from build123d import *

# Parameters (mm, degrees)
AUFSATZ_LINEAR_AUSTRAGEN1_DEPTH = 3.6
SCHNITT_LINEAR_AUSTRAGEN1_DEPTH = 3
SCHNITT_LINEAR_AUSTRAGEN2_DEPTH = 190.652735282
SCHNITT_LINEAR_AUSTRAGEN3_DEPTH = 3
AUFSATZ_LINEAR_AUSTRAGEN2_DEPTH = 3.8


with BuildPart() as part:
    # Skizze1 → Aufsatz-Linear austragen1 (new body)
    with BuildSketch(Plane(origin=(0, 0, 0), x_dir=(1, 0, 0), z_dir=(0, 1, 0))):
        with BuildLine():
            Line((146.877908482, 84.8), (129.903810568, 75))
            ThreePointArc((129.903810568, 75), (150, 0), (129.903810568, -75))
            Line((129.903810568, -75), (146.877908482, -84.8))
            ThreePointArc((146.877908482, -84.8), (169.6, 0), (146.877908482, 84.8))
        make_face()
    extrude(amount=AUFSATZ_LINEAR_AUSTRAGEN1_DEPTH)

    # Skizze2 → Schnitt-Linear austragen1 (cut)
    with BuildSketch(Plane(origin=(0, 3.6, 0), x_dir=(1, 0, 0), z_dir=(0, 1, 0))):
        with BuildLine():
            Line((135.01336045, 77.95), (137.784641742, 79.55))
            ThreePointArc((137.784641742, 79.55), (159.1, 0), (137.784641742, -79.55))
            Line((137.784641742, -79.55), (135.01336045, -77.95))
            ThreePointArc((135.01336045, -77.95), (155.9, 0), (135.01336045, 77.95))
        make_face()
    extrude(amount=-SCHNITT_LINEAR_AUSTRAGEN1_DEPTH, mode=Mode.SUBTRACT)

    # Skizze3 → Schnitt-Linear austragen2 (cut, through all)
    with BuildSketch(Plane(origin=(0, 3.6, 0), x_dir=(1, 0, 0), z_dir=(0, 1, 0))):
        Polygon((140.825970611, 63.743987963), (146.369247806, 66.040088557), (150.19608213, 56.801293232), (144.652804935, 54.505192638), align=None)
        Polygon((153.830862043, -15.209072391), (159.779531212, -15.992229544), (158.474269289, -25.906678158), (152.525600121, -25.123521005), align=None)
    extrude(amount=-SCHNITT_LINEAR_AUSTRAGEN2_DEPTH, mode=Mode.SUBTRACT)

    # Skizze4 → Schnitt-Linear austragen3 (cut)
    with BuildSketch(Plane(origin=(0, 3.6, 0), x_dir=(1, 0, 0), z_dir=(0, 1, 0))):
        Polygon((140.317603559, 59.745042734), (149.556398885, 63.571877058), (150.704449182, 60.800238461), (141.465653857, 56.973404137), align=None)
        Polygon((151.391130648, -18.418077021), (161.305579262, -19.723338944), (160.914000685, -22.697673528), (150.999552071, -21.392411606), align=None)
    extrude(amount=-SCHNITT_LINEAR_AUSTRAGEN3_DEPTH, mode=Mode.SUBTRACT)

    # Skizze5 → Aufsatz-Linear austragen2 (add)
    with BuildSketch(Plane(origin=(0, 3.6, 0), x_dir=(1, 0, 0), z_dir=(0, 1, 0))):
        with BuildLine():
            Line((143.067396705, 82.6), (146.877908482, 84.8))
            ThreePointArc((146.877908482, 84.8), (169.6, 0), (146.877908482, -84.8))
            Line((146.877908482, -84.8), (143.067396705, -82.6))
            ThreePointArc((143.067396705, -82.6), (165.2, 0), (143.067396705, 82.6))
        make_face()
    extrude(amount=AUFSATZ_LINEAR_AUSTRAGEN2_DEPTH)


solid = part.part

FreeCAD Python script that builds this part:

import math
import FreeCAD as App
import Part
import Sketcher

V = App.Vector
Q = App.Units.Quantity


def add_polygon(sketch, points):
    """Adds a closed chain of lines whose ends are joined by coincident constraints."""
    first, n = sketch.GeometryCount, len(points)
    for a, b in zip(points, points[1:] + points[:1]):
        sketch.addGeometry(Part.LineSegment(App.Vector(*a, 0), App.Vector(*b, 0)), False)
    for i in range(n):
        sketch.addConstraint(Sketcher.Constraint("Coincident", first + i, 2, first + (i + 1) % n, 1))

doc = App.newDocument("Part")
body = doc.addObject("PartDesign::Body", "Body")

# Sketch on XZ plane
sketch1 = doc.addObject("Sketcher::SketchObject", "Sketch")
body.addObject(sketch1)
sketch1.AttachmentSupport = (doc.XZ_Plane, [""])
sketch1.MapMode = "FlatFace"
sketch1.addGeometry(Part.LineSegment(V(146.877908, -84.8, 0), V(129.903811, -75, 0)), False)
sketch1.addGeometry(Part.ArcOfCircle(Part.Circle(V(0, 0, 0), V(0, 0, 1), 150), math.radians(-30), math.radians(30)), False)
sketch1.addGeometry(Part.LineSegment(V(129.903811, 75, 0), V(146.877908, 84.8, 0)), False)
sketch1.addGeometry(Part.ArcOfCircle(Part.Circle(V(0, 0, 0), V(0, 0, 1), 169.6), math.radians(-30), math.radians(30)), False)
sketch1.addConstraint(Sketcher.Constraint("Coincident", 0, 2, 1, 1))
sketch1.addConstraint(Sketcher.Constraint("Coincident", 1, 2, 2, 1))
sketch1.addConstraint(Sketcher.Constraint("Coincident", 2, 2, 3, 2))
sketch1.addConstraint(Sketcher.Constraint("Coincident", 3, 1, 0, 1))
sketch1.addConstraint(Sketcher.Constraint("Coincident", 1, 3, -1, 1))
sketch1.addConstraint(Sketcher.Constraint("Coincident", 3, 3, -1, 1))
sketch1.addConstraint(Sketcher.Constraint("Vertical", 0, 2, 1, 2))
sketch1.addConstraint(Sketcher.Constraint("Vertical", 2, 2, 3, 1))
sketch1.addConstraint(Sketcher.Constraint("Radius", 1, Q("150 mm")))
sketch1.addConstraint(Sketcher.Constraint("Radius", 3, Q("169.6 mm")))
sketch1.addConstraint(Sketcher.Constraint("Angle", 0, Q("150 deg")))
sketch1.addConstraint(Sketcher.Constraint("DistanceY", 0, 2, -1, 1, Q("75 mm")))
pad1 = doc.addObject("PartDesign::Pad", "Pad")
body.addObject(pad1)
pad1.Profile = sketch1
pad1.Length = 3.6
pad1.Reversed = True

# Sketch on XZ plane
sketch2 = doc.addObject("Sketcher::SketchObject", "Sketch001")
body.addObject(sketch2)
sketch2.AttachmentSupport = (doc.XZ_Plane, [""])
sketch2.MapMode = "FlatFace"
sketch2.AttachmentOffset = App.Placement(V(0, 0, -3.6), App.Rotation())
sketch2.addGeometry(Part.LineSegment(V(137.784642, -79.55, 0), V(135.01336, -77.95, 0)), False)
sketch2.addGeometry(Part.ArcOfCircle(Part.Circle(V(0, 0, 0), V(0, 0, 1), 155.9), math.radians(-30), math.radians(30)), False)
sketch2.addGeometry(Part.LineSegment(V(135.01336, 77.95, 0), V(137.784642, 79.55, 0)), False)
sketch2.addGeometry(Part.ArcOfCircle(Part.Circle(V(0, 0, 0), V(0, 0, 1), 159.1), math.radians(-30), math.radians(30)), False)
sketch2.addConstraint(Sketcher.Constraint("Coincident", 0, 2, 1, 1))
sketch2.addConstraint(Sketcher.Constraint("Coincident", 1, 2, 2, 1))
sketch2.addConstraint(Sketcher.Constraint("Coincident", 2, 2, 3, 2))
sketch2.addConstraint(Sketcher.Constraint("Coincident", 3, 1, 0, 1))
sketch2.addConstraint(Sketcher.Constraint("Coincident", 1, 3, -1, 1))
sketch2.addConstraint(Sketcher.Constraint("Coincident", 3, 3, -1, 1))
sketch2.addConstraint(Sketcher.Constraint("Vertical", 0, 2, 1, 2))
sketch2.addConstraint(Sketcher.Constraint("Vertical", 2, 2, 3, 1))
sketch2.addConstraint(Sketcher.Constraint("Radius", 1, Q("155.9 mm")))
sketch2.addConstraint(Sketcher.Constraint("Radius", 3, Q("159.1 mm")))
sketch2.addConstraint(Sketcher.Constraint("Angle", 0, Q("150 deg")))
sketch2.addConstraint(Sketcher.Constraint("DistanceY", 0, 2, 1, 2, Q("155.9 mm")))
pocket1 = doc.addObject("PartDesign::Pocket", "Pocket")
body.addObject(pocket1)
pocket1.Profile = sketch2
pocket1.Length = 3
pocket1.Reversed = True

# Sketch on XZ plane
sketch3 = doc.addObject("Sketcher::SketchObject", "Sketch002")
body.addObject(sketch3)
sketch3.AttachmentSupport = (doc.XZ_Plane, [""])
sketch3.MapMode = "FlatFace"
sketch3.AttachmentOffset = App.Placement(V(0, 0, -3.6), App.Rotation())
add_polygon(sketch3, [(146.369248, -66.040089), (140.825971, -63.743988), (144.652805, -54.505193), (150.196082, -56.801293)])  # lines 0-3
add_polygon(sketch3, [(159.779531, 15.99223), (153.830862, 15.209072), (152.5256, 25.123521), (158.474269, 25.906678)])  # lines 4-7
sketch3.addConstraint(Sketcher.Constraint("Perpendicular", 0, 1))
sketch3.addConstraint(Sketcher.Constraint("Perpendicular", 1, 2))
sketch3.addConstraint(Sketcher.Constraint("Perpendicular", 2, 3))
sketch3.addConstraint(Sketcher.Constraint("Perpendicular", 4, 5))
sketch3.addConstraint(Sketcher.Constraint("Perpendicular", 5, 6))
sketch3.addConstraint(Sketcher.Constraint("Perpendicular", 6, 7))
sketch3.addConstraint(Sketcher.Constraint("Equal", 2, 4))
sketch3.addConstraint(Sketcher.Constraint("Equal", 3, 5))
sketch3.addConstraint(Sketcher.Constraint("Distance", 0, Q("6 mm")))
sketch3.addConstraint(Sketcher.Constraint("Distance", 1, Q("10 mm")))
sketch3.addConstraint(Sketcher.Constraint("Angle", 0, Q("157.5 deg")))
sketch3.addConstraint(Sketcher.Constraint("Angle", 4, Q("-172.5 deg")))
sketch3.addConstraint(Sketcher.Constraint("DistanceX", -1, 1, 5, 2, Q("152.5256 mm")))
sketch3.addConstraint(Sketcher.Constraint("DistanceX", 0, 2, 6, 2, Q("17.648299 mm")))
sketch3.addConstraint(Sketcher.Constraint("DistanceY", 3, 2, -1, 1, Q("66.040089 mm")))
sketch3.addConstraint(Sketcher.Constraint("DistanceY", -1, 1, 5, 2, Q("25.123521 mm")))
pocket2 = doc.addObject("PartDesign::Pocket", "Pocket001")
body.addObject(pocket2)
pocket2.Profile = sketch3
pocket2.Type = "ThroughAll"
pocket2.Reversed = True

# Sketch on XZ plane
sketch4 = doc.addObject("Sketcher::SketchObject", "Sketch003")
body.addObject(sketch4)
sketch4.AttachmentSupport = (doc.XZ_Plane, [""])
sketch4.MapMode = "FlatFace"
sketch4.AttachmentOffset = App.Placement(V(0, 0, -3.6), App.Rotation())
add_polygon(sketch4, [(149.556399, -63.571877), (140.317604, -59.745043), (141.465654, -56.973404), (150.704449, -60.800238)])  # lines 0-3
add_polygon(sketch4, [(161.305579, 19.723339), (151.391131, 18.418077), (150.999552, 21.392412), (160.914001, 22.697674)])  # lines 4-7
sketch4.addConstraint(Sketcher.Constraint("Perpendicular", 0, 1))
sketch4.addConstraint(Sketcher.Constraint("Perpendicular", 1, 2))
sketch4.addConstraint(Sketcher.Constraint("Perpendicular", 2, 3))
sketch4.addConstraint(Sketcher.Constraint("Perpendicular", 4, 5))
sketch4.addConstraint(Sketcher.Constraint("Perpendicular", 5, 6))
sketch4.addConstraint(Sketcher.Constraint("Perpendicular", 6, 7))
sketch4.addConstraint(Sketcher.Constraint("Equal", 2, 4))
sketch4.addConstraint(Sketcher.Constraint("Equal", 3, 5))
sketch4.addConstraint(Sketcher.Constraint("Distance", 0, Q("10 mm")))
sketch4.addConstraint(Sketcher.Constraint("Distance", 1, Q("3 mm")))
sketch4.addConstraint(Sketcher.Constraint("Angle", 0, Q("157.5 deg")))
sketch4.addConstraint(Sketcher.Constraint("Angle", 4, Q("-172.5 deg")))
sketch4.addConstraint(Sketcher.Constraint("DistanceX", -1, 1, 6, 2, Q("160.914001 mm")))
sketch4.addConstraint(Sketcher.Constraint("DistanceX", -1, 1, 3, 2, Q("149.556399 mm")))
sketch4.addConstraint(Sketcher.Constraint("DistanceY", 2, 2, -1, 1, Q("60.800238 mm")))
sketch4.addConstraint(Sketcher.Constraint("DistanceY", -1, 1, 5, 2, Q("21.392412 mm")))
pocket3 = doc.addObject("PartDesign::Pocket", "Pocket002")
body.addObject(pocket3)
pocket3.Profile = sketch4
pocket3.Length = 3
pocket3.Reversed = True

# Sketch on XZ plane
sketch5 = doc.addObject("Sketcher::SketchObject", "Sketch004")
body.addObject(sketch5)
sketch5.AttachmentSupport = (doc.XZ_Plane, [""])
sketch5.MapMode = "FlatFace"
sketch5.AttachmentOffset = App.Placement(V(0, 0, -3.6), App.Rotation())
sketch5.addGeometry(Part.LineSegment(V(146.877908, -84.8, 0), V(143.067397, -82.6, 0)), False)
sketch5.addGeometry(Part.ArcOfCircle(Part.Circle(V(0, 0, 0), V(0, 0, 1), 165.2), math.radians(-30), math.radians(30)), False)
sketch5.addGeometry(Part.LineSegment(V(143.067397, 82.6, 0), V(146.877908, 84.8, 0)), False)
sketch5.addGeometry(Part.ArcOfCircle(Part.Circle(V(0, 0, 0), V(0, 0, 1), 169.6), math.radians(-30), math.radians(30)), False)
sketch5.addConstraint(Sketcher.Constraint("Coincident", 0, 2, 1, 1))
sketch5.addConstraint(Sketcher.Constraint("Coincident", 1, 2, 2, 1))
sketch5.addConstraint(Sketcher.Constraint("Coincident", 2, 2, 3, 2))
sketch5.addConstraint(Sketcher.Constraint("Coincident", 3, 1, 0, 1))
sketch5.addConstraint(Sketcher.Constraint("Coincident", 1, 3, -1, 1))
sketch5.addConstraint(Sketcher.Constraint("Coincident", 3, 3, -1, 1))
sketch5.addConstraint(Sketcher.Constraint("Vertical", 0, 2, 1, 2))
sketch5.addConstraint(Sketcher.Constraint("Vertical", 2, 2, 3, 1))
sketch5.addConstraint(Sketcher.Constraint("Radius", 1, Q("165.2 mm")))
sketch5.addConstraint(Sketcher.Constraint("Radius", 3, Q("169.6 mm")))
sketch5.addConstraint(Sketcher.Constraint("Angle", 0, Q("150 deg")))
sketch5.addConstraint(Sketcher.Constraint("DistanceY", 0, 2, -1, 1, Q("82.6 mm")))
pad2 = doc.addObject("PartDesign::Pad", "Pad001")
body.addObject(pad2)
pad2.Profile = sketch5
pad2.Length = 3.8
pad2.Reversed = True

doc.recompute()
